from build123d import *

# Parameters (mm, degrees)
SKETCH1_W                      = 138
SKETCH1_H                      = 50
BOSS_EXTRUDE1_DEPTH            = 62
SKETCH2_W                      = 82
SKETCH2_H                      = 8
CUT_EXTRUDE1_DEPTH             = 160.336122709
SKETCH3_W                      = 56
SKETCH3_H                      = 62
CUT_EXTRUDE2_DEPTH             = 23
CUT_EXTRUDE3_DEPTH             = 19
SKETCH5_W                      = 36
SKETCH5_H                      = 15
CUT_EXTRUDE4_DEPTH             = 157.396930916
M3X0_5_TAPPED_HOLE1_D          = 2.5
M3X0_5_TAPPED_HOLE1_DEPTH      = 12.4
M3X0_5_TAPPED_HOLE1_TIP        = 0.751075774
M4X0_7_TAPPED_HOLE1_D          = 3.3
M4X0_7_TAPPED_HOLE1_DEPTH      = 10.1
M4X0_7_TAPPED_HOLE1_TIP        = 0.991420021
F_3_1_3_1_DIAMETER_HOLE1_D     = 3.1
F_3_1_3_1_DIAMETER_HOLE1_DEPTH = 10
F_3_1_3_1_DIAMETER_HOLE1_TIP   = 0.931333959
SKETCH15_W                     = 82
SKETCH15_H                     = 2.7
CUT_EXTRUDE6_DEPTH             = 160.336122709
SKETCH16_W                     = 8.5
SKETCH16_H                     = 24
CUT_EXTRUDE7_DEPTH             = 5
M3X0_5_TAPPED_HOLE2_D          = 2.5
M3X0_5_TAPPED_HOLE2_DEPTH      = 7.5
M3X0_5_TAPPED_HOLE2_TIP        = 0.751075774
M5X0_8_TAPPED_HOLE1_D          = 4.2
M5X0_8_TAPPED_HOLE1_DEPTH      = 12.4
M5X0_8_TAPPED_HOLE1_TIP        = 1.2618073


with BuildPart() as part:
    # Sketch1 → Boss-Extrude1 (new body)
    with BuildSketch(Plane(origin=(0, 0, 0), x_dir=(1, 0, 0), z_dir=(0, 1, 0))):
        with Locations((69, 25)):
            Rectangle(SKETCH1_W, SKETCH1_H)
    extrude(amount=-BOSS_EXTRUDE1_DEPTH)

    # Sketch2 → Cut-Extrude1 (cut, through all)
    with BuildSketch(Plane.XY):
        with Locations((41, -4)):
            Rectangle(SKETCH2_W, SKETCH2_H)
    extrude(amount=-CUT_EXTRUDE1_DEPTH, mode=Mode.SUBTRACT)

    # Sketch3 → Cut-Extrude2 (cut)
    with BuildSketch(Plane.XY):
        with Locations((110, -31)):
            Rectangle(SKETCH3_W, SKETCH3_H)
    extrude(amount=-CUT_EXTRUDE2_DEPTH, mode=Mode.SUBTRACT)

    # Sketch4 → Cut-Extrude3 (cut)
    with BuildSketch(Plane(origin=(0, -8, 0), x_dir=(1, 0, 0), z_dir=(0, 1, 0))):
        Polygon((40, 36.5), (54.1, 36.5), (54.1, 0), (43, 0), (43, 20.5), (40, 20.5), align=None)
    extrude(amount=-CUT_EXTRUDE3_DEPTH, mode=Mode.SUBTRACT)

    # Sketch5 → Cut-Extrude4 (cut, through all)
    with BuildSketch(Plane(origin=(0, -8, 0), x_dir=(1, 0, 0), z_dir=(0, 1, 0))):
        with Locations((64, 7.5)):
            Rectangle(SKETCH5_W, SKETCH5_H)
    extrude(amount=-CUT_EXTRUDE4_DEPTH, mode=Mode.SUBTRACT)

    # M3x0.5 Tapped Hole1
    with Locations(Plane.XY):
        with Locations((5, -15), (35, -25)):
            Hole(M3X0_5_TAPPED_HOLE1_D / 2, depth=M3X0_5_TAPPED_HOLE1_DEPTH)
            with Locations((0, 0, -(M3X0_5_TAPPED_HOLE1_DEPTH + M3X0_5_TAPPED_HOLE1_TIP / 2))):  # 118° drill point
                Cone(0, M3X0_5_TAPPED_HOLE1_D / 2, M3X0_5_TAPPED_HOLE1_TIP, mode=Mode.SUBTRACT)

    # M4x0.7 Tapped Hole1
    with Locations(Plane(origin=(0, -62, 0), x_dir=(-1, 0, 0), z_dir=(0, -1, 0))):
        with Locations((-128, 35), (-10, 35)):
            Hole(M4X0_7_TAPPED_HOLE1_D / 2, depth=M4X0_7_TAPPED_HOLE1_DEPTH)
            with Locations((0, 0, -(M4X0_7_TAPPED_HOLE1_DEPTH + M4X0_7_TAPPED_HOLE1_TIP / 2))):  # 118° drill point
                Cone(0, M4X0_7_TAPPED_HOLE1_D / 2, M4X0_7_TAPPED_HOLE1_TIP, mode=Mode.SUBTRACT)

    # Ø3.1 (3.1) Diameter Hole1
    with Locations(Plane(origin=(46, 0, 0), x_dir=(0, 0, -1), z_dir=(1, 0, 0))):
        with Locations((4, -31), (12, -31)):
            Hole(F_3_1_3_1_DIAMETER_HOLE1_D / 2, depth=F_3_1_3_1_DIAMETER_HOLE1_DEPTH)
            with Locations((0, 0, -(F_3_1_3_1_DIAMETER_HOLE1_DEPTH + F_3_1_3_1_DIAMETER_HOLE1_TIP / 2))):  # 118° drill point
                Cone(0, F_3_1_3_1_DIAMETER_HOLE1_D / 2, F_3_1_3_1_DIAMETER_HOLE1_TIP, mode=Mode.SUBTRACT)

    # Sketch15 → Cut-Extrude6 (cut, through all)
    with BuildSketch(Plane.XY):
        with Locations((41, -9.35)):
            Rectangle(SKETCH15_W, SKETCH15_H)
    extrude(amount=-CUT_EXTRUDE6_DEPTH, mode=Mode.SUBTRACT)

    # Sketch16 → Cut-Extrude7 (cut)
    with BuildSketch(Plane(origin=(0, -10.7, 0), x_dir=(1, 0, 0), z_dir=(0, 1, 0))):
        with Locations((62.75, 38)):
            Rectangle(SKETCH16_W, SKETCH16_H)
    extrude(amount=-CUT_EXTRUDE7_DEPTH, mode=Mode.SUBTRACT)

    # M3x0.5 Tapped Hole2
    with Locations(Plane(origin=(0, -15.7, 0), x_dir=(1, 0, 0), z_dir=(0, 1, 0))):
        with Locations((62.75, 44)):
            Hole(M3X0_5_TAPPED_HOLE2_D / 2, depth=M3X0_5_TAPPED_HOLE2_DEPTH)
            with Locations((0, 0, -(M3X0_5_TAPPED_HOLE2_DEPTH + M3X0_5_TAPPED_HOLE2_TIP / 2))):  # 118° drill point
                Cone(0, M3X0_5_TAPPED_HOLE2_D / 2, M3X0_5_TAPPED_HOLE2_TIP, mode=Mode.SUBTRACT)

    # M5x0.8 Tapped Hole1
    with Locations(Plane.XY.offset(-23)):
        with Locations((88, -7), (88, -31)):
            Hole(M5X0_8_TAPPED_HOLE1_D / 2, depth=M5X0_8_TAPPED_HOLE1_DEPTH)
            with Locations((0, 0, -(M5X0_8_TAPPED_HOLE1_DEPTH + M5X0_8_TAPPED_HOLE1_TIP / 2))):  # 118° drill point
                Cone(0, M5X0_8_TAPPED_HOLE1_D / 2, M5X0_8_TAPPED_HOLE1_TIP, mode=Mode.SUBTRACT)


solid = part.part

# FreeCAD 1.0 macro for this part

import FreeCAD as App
import Part
import Sketcher
from FreeCAD import Vector
Q = App.Units.Quantity

doc = App.newDocument("Part")
body = doc.addObject("PartDesign::Body", "Body")

# Sketch on XZ plane
sketch1 = body.newObject("Sketcher::SketchObject", "Sketch")
sketch1.AttachmentSupport = (doc.getObject("XZ_Plane"), [""])
sketch1.MapMode = "FlatFace"
sketch1.addGeometry([
    Part.LineSegment(Vector(0, -50, 0), Vector(0, 0, 0)),
    Part.LineSegment(Vector(0, 0, 0), Vector(138, 0, 0)),
    Part.LineSegment(Vector(138, 0, 0), Vector(138, -50, 0)),
    Part.LineSegment(Vector(138, -50, 0), Vector(0, -50, 0)),
], False)
sketch1.addConstraint([
    Sketcher.Constraint("Coincident", 0, 2, 1, 1),
    Sketcher.Constraint("Coincident", 1, 2, 2, 1),
    Sketcher.Constraint("Coincident", 2, 2, 3, 1),
    Sketcher.Constraint("Coincident", 3, 2, 0, 1),
    Sketcher.Constraint("Vertical", 0),
    Sketcher.Constraint("Horizontal", 1),
    Sketcher.Constraint("Vertical", 2),
    Sketcher.Constraint("Horizontal", 3),
    Sketcher.Constraint("Coincident", 0, 2, -1, 1),
    Sketcher.Constraint("DistanceX", 1, 1, 1, 2, Q("138 mm")),
    Sketcher.Constraint("DistanceY", 0, 1, 0, 2, Q("50 mm")),
])
pad1 = body.newObject("PartDesign::Pad", "Pad")
pad1.Profile = sketch1
pad1.Length = 62

# Sketch on XY plane
sketch2 = body.newObject("Sketcher::SketchObject", "Sketch001")
sketch2.AttachmentSupport = (doc.getObject("XY_Plane"), [""])
sketch2.MapMode = "FlatFace"
sketch2.addGeometry([
    Part.LineSegment(Vector(0, 0, 0), Vector(0, -8, 0)),
    Part.LineSegment(Vector(0, -8, 0), Vector(82, -8, 0)),
    Part.LineSegment(Vector(82, -8, 0), Vector(82, 0, 0)),
    Part.LineSegment(Vector(82, 0, 0), Vector(0, 0, 0)),
], False)
sketch2.addConstraint([
    Sketcher.Constraint("Coincident", 0, 2, 1, 1),
    Sketcher.Constraint("Coincident", 1, 2, 2, 1),
    Sketcher.Constraint("Coincident", 2, 2, 3, 1),
    Sketcher.Constraint("Coincident", 3, 2, 0, 1),
    Sketcher.Constraint("Vertical", 0),
    Sketcher.Constraint("Horizontal", 1),
    Sketcher.Constraint("Vertical", 2),
    Sketcher.Constraint("Horizontal", 3),
    Sketcher.Constraint("Coincident", 3, 2, -1, 1),
    Sketcher.Constraint("DistanceX", 1, 1, 1, 2, Q("82 mm")),
    Sketcher.Constraint("DistanceY", 0, 2, 0, 1, Q("8 mm")),
])
pocket1 = body.newObject("PartDesign::Pocket", "Pocket")
pocket1.Profile = sketch2
pocket1.Type = "ThroughAll"

# Sketch on XY plane
sketch3 = body.newObject("Sketcher::SketchObject", "Sketch002")
sketch3.AttachmentSupport = (doc.getObject("XY_Plane"), [""])
sketch3.MapMode = "FlatFace"
sketch3.addGeometry([
    Part.LineSegment(Vector(82, 0, 0), Vector(82, -62, 0)),
    Part.LineSegment(Vector(82, -62, 0), Vector(138, -62, 0)),
    Part.LineSegment(Vector(138, -62, 0), Vector(138, 0, 0)),
    Part.LineSegment(Vector(138, 0, 0), Vector(82, 0, 0)),
], False)
sketch3.addConstraint([
    Sketcher.Constraint("Coincident", 0, 2, 1, 1),
    Sketcher.Constraint("Coincident", 1, 2, 2, 1),
    Sketcher.Constraint("Coincident", 2, 2, 3, 1),
    Sketcher.Constraint("Coincident", 3, 2, 0, 1),
    Sketcher.Constraint("Vertical", 0),
    Sketcher.Constraint("Horizontal", 1),
    Sketcher.Constraint("Vertical", 2),
    Sketcher.Constraint("Horizontal", 3),
    Sketcher.Constraint("PointOnObject", 2, 2, -1),
    Sketcher.Constraint("DistanceX", 1, 1, 1, 2, Q("56 mm")),
    Sketcher.Constraint("DistanceY", 0, 2, 0, 1, Q("62 mm")),
    Sketcher.Constraint("DistanceX", -1, 1, 0, 2, Q("82 mm")),
])
pocket2 = body.newObject("PartDesign::Pocket", "Pocket001")
pocket2.Profile = sketch3
pocket2.Length = 23

# Sketch on XZ plane
sketch4 = body.newObject("Sketcher::SketchObject", "Sketch003")
sketch4.AttachmentSupport = (doc.getObject("XZ_Plane"), [""])
sketch4.MapMode = "FlatFace"
sketch4.AttachmentOffset = App.Placement(Vector(0, 0, 8), App.Rotation())
sketch4.addGeometry([
    Part.LineSegment(Vector(54.1, -36.5, 0), Vector(40, -36.5, 0)),  # 0
    Part.LineSegment(Vector(40, -36.5, 0), Vector(40, -20.5, 0)),  # 1
    Part.LineSegment(Vector(40, -20.5, 0), Vector(43, -20.5, 0)),  # 2
    Part.LineSegment(Vector(43, -20.5, 0), Vector(43, 0, 0)),  # 3
    Part.LineSegment(Vector(43, 0, 0), Vector(54.1, 0, 0)),  # 4
    Part.LineSegment(Vector(54.1, 0, 0), Vector(54.1, -36.5, 0)),  # 5
], False)
sketch4.addConstraint([
    Sketcher.Constraint("Coincident", 0, 2, 1, 1),
    Sketcher.Constraint("Coincident", 1, 2, 2, 1),
    Sketcher.Constraint("Coincident", 2, 2, 3, 1),
    Sketcher.Constraint("Coincident", 3, 2, 4, 1),
    Sketcher.Constraint("Coincident", 4, 2, 5, 1),
    Sketcher.Constraint("Coincident", 5, 2, 0, 1),
    Sketcher.Constraint("Horizontal", 0),
    Sketcher.Constraint("Vertical", 1),
    Sketcher.Constraint("Horizontal", 2),
    Sketcher.Constraint("Vertical", 3),
    Sketcher.Constraint("Horizontal", 4),
    Sketcher.Constraint("Vertical", 5),
    Sketcher.Constraint("PointOnObject", 3, 2, -1),
    Sketcher.Constraint("DistanceX", 2, 1, 2, 2, Q("3 mm")),
    Sketcher.Constraint("DistanceY", 1, 1, 1, 2, Q("16 mm")),
    Sketcher.Constraint("DistanceX", 0, 2, 0, 1, Q("14.1 mm")),
    Sketcher.Constraint("DistanceY", 3, 1, 3, 2, Q("20.5 mm")),
    Sketcher.Constraint("DistanceX", -1, 1, 0, 2, Q("40 mm")),
])
pocket3 = body.newObject("PartDesign::Pocket", "Pocket002")
pocket3.Profile = sketch4
pocket3.Length = 19
pocket3.Reversed = True

# Sketch on XZ plane
sketch5 = body.newObject("Sketcher::SketchObject", "Sketch004")
sketch5.AttachmentSupport = (doc.getObject("XZ_Plane"), [""])
sketch5.MapMode = "FlatFace"
sketch5.AttachmentOffset = App.Placement(Vector(0, 0, 8), App.Rotation())
sketch5.addGeometry([
    Part.LineSegment(Vector(46, -15, 0), Vector(46, 0, 0)),
    Part.LineSegment(Vector(46, 0, 0), Vector(82, 0, 0)),
    Part.LineSegment(Vector(82, 0, 0), Vector(82, -15, 0)),
    Part.LineSegment(Vector(82, -15, 0), Vector(46, -15, 0)),
], False)
sketch5.addConstraint([
    Sketcher.Constraint("Coincident", 0, 2, 1, 1),
    Sketcher.Constraint("Coincident", 1, 2, 2, 1),
    Sketcher.Constraint("Coincident", 2, 2, 3, 1),
    Sketcher.Constraint("Coincident", 3, 2, 0, 1),
    Sketcher.Constraint("Vertical", 0),
    Sketcher.Constraint("Horizontal", 1),
    Sketcher.Constraint("Vertical", 2),
    Sketcher.Constraint("Horizontal", 3),
    Sketcher.Constraint("PointOnObject", 0, 2, -1),
    Sketcher.Constraint("DistanceX", 1, 1, 1, 2, Q("36 mm")),
    Sketcher.Constraint("DistanceY", 0, 1, 0, 2, Q("15 mm")),
    Sketcher.Constraint("DistanceX", -1, 1, 0, 2, Q("46 mm")),
])
pocket4 = body.newObject("PartDesign::Pocket", "Pocket003")
pocket4.Profile = sketch5
pocket4.Type = "ThroughAll"
pocket4.Reversed = True

# Sketch on XY plane
sketch6 = body.newObject("Sketcher::SketchObject", "Sketch005")
sketch6.AttachmentSupport = (doc.getObject("XY_Plane"), [""])
sketch6.MapMode = "FlatFace"
sketch6.addGeometry([
    Part.Circle(Vector(5, -15, 0), Vector(0, 0, 1), 1.25),
    Part.Circle(Vector(35, -25, 0), Vector(0, 0, 1), 1.25),
], False)
sketch6.addConstraint([
    Sketcher.Constraint("Equal", 0, 1),
    Sketcher.Constraint("Diameter", 0, Q("2.5 mm")),
    Sketcher.Constraint("DistanceX", -1, 1, 0, 3, Q("5 mm")),
    Sketcher.Constraint("DistanceY", 0, 3, -1, 1, Q("15 mm")),
    Sketcher.Constraint("DistanceX", -1, 1, 1, 3, Q("35 mm")),
    Sketcher.Constraint("DistanceY", 1, 3, -1, 1, Q("25 mm")),
])
doc.recompute()
hole = body.newObject("PartDesign::Hole", "Hole")
hole.Profile = sketch6
hole.ThreadType = "None"
hole.Diameter = 2.5
hole.DepthType = "Dimension"
hole.Depth = 12.4
hole.DrillPoint = "Angled"
hole.DrillPointAngle = 118

# Sketch on XZ plane
sketch7 = body.newObject("Sketcher::SketchObject", "Sketch006")
sketch7.AttachmentSupport = (doc.getObject("XZ_Plane"), [""])
sketch7.MapMode = "FlatFace"
sketch7.AttachmentOffset = App.Placement(Vector(0, 0, 62), App.Rotation())
sketch7.addGeometry([
    Part.Circle(Vector(128, -35, 0), Vector(0, 0, 1), 1.65),
    Part.Circle(Vector(10, -35, 0), Vector(0, 0, 1), 1.65),
], False)
sketch7.addConstraint([
    Sketcher.Constraint("Equal", 0, 1),
    Sketcher.Constraint("Horizontal", 0, 3, 1, 3),
    Sketcher.Constraint("Diameter", 0, Q("3.3 mm")),
    Sketcher.Constraint("DistanceX", -1, 1, 0, 3, Q("128 mm")),
    Sketcher.Constraint("DistanceY", 0, 3, -1, 1, Q("35 mm")),
    Sketcher.Constraint("DistanceX", -1, 1, 1, 3, Q("10 mm")),
])
doc.recompute()
hole2 = body.newObject("PartDesign::Hole", "Hole001")
hole2.Profile = sketch7
hole2.ThreadType = "None"
hole2.Diameter = 3.3
hole2.DepthType = "Dimension"
hole2.Depth = 10.1
hole2.DrillPoint = "Angled"
hole2.DrillPointAngle = 118

# Sketch on YZ plane
sketch8 = body.newObject("Sketcher::SketchObject", "Sketch007")
sketch8.AttachmentSupport = (doc.getObject("YZ_Plane"), [""])
sketch8.MapMode = "FlatFace"
sketch8.AttachmentOffset = App.Placement(Vector(0, 0, 46), App.Rotation())
sketch8.addGeometry([
    Part.Circle(Vector(-31, -4, 0), Vector(0, 0, 1), 1.55),
    Part.Circle(Vector(-31, -12, 0), Vector(0, 0, 1), 1.55),
], False)
sketch8.addConstraint([
    Sketcher.Constraint("Equal", 0, 1),
    Sketcher.Constraint("Vertical", 0, 3, 1, 3),
    Sketcher.Constraint("Diameter", 0, Q("3.1 mm")),
    Sketcher.Constraint("DistanceX", 0, 3, -1, 1, Q("31 mm")),
    Sketcher.Constraint("DistanceY", 0, 3, -1, 1, Q("4 mm")),
    Sketcher.Constraint("DistanceY", 1, 3, -1, 1, Q("12 mm")),
])
doc.recompute()
hole3 = body.newObject("PartDesign::Hole", "Hole002")
hole3.Profile = sketch8
hole3.ThreadType = "None"
hole3.Diameter = 3.1
hole3.DepthType = "Dimension"
hole3.Depth = 10
hole3.DrillPoint = "Angled"
hole3.DrillPointAngle = 118

# Sketch on XY plane
sketch9 = body.newObject("Sketcher::SketchObject", "Sketch008")
sketch9.AttachmentSupport = (doc.getObject("XY_Plane"), [""])
sketch9.MapMode = "FlatFace"
sketch9.addGeometry([
    Part.LineSegment(Vector(0, -8, 0), Vector(0, -10.7, 0)),
    Part.LineSegment(Vector(0, -10.7, 0), Vector(82, -10.7, 0)),
    Part.LineSegment(Vector(82, -10.7, 0), Vector(82, -8, 0)),
    Part.LineSegment(Vector(82, -8, 0), Vector(0, -8, 0)),
], False)
sketch9.addConstraint([
    Sketcher.Constraint("Coincident", 0, 2, 1, 1),
    Sketcher.Constraint("Coincident", 1, 2, 2, 1),
    Sketcher.Constraint("Coincident", 2, 2, 3, 1),
    Sketcher.Constraint("Coincident", 3, 2, 0, 1),
    Sketcher.Constraint("Vertical", 0),
    Sketcher.Constraint("Horizontal", 1),
    Sketcher.Constraint("Vertical", 2),
    Sketcher.Constraint("Horizontal", 3),
    Sketcher.Constraint("PointOnObject", 0, 2, -2),
    Sketcher.Constraint("DistanceX", 1, 1, 1, 2, Q("82 mm")),
    Sketcher.Constraint("DistanceY", 0, 2, 0, 1, Q("2.7 mm")),
    Sketcher.Constraint("DistanceY", 2, 2, -1, 1, Q("8 mm")),
])
pocket5 = body.newObject("PartDesign::Pocket", "Pocket004")
pocket5.Profile = sketch9
pocket5.Type = "ThroughAll"

# Sketch on XZ plane
sketch10 = body.newObject("Sketcher::SketchObject", "Sketch009")
sketch10.AttachmentSupport = (doc.getObject("XZ_Plane"), [""])
sketch10.MapMode = "FlatFace"
sketch10.AttachmentOffset = App.Placement(Vector(0, 0, 10.7), App.Rotation())
sketch10.addGeometry([
    Part.LineSegment(Vector(58.5, -50, 0), Vector(58.5, -26, 0)),
    Part.LineSegment(Vector(58.5, -26, 0), Vector(67, -26, 0)),
    Part.LineSegment(Vector(67, -26, 0), Vector(67, -50, 0)),
    Part.LineSegment(Vector(67, -50, 0), Vector(58.5, -50, 0)),
], False)
sketch10.addConstraint([
    Sketcher.Constraint("Coincident", 0, 2, 1, 1),
    Sketcher.Constraint("Coincident", 1, 2, 2, 1),
    Sketcher.Constraint("Coincident", 2, 2, 3, 1),
    Sketcher.Constraint("Coincident", 3, 2, 0, 1),
    Sketcher.Constraint("Vertical", 0),
    Sketcher.Constraint("Horizontal", 1),
    Sketcher.Constraint("Vertical", 2),
    Sketcher.Constraint("Horizontal", 3),
    Sketcher.Constraint("DistanceY", 0, 1, 0, 2, Q("24 mm")),
    Sketcher.Constraint("DistanceX", 1, 1, 1, 2, Q("8.5 mm")),
    Sketcher.Constraint("DistanceY", 0, 2, -1, 1, Q("26 mm")),
    Sketcher.Constraint("DistanceX", -1, 1, 1, 2, Q("67 mm")),
])
pocket6 = body.newObject("PartDesign::Pocket", "Pocket005")
pocket6.Profile = sketch10
pocket6.Length = 5
pocket6.Reversed = True

# Sketch on XZ plane
sketch11 = body.newObject("Sketcher::SketchObject", "Sketch010")
sketch11.AttachmentSupport = (doc.getObject("XZ_Plane"), [""])
sketch11.MapMode = "FlatFace"
sketch11.AttachmentOffset = App.Placement(Vector(0, 0, 15.7), App.Rotation())
sketch11.addGeometry(Part.Circle(Vector(62.75, -44, 0), Vector(0, 0, 1), 1.25), False)
sketch11.addConstraint([
    Sketcher.Constraint("Diameter", 0, Q("2.5 mm")),
    Sketcher.Constraint("DistanceY", 0, 3, -1, 1, Q("44 mm")),
    Sketcher.Constraint("DistanceX", -1, 1, 0, 3, Q("62.75 mm")),
])
doc.recompute()
hole4 = body.newObject("PartDesign::Hole", "Hole003")
hole4.Profile = sketch11
hole4.ThreadType = "None"
hole4.Diameter = 2.5
hole4.DepthType = "Dimension"
hole4.Depth = 7.5
hole4.DrillPoint = "Angled"
hole4.DrillPointAngle = 118
hole4.Reversed = True

# Sketch on XY plane
sketch12 = body.newObject("Sketcher::SketchObject", "Sketch011")
sketch12.AttachmentSupport = (doc.getObject("XY_Plane"), [""])
sketch12.MapMode = "FlatFace"
sketch12.AttachmentOffset = App.Placement(Vector(0, 0, -23), App.Rotation())
sketch12.addGeometry([
    Part.Circle(Vector(88, -7, 0), Vector(0, 0, 1), 2.1),
    Part.Circle(Vector(88, -31, 0), Vector(0, 0, 1), 2.1),
], False)
sketch12.addConstraint([
    Sketcher.Constraint("Equal", 0, 1),
    Sketcher.Constraint("Vertical", 0, 3, 1, 3),
    Sketcher.Constraint("Diameter", 0, Q("4.2 mm")),
    Sketcher.Constraint("DistanceX", -1, 1, 0, 3, Q("88 mm")),
    Sketcher.Constraint("DistanceY", 0, 3, -1, 1, Q("7 mm")),
    Sketcher.Constraint("DistanceY", 1, 3, -1, 1, Q("31 mm")),
])
doc.recompute()
hole5 = body.newObject("PartDesign::Hole", "Hole004")
hole5.Profile = sketch12
hole5.ThreadType = "None"
hole5.Diameter = 4.2
hole5.DepthType = "Dimension"
hole5.Depth = 12.4
hole5.DrillPoint = "Angled"
hole5.DrillPointAngle = 118

doc.recompute()
